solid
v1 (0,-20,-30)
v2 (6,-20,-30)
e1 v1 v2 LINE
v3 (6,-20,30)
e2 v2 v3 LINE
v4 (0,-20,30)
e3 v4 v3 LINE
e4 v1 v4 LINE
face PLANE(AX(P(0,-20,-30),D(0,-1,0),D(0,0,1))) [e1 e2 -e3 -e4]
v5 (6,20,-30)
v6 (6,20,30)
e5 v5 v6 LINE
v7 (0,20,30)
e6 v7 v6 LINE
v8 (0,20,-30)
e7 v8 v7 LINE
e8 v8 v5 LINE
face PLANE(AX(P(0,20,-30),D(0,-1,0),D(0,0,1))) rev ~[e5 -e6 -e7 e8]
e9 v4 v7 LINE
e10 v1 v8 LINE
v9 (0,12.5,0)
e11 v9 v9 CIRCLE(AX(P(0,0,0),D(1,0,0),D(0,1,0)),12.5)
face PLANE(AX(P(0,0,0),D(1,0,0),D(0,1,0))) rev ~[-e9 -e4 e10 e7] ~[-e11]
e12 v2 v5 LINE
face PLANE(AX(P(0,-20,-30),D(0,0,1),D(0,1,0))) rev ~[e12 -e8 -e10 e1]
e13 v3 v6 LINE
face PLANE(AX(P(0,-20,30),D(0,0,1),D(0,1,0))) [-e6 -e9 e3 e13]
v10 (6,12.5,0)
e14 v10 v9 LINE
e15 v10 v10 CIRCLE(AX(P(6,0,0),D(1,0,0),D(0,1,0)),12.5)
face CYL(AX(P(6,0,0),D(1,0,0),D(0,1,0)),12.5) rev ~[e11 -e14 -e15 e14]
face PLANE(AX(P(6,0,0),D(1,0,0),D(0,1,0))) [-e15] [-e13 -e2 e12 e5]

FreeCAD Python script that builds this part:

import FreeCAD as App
import Part
import Sketcher
from FreeCAD import Vector


def add_polygon(sketch, points):
    """Adds a closed chain of lines whose ends are joined by coincident constraints."""
    first, n = sketch.GeometryCount, len(points)
    for a, b in zip(points, points[1:] + points[:1]):
        sketch.addGeometry(Part.LineSegment(App.Vector(*a, 0), App.Vector(*b, 0)), False)
    for i in range(n):
        sketch.addConstraint(Sketcher.Constraint("Coincident", first + i, 2, first + (i + 1) % n, 1))

doc = App.newDocument("Part")
body = doc.addObject("PartDesign::Body", "Body")

# Sketch on YZ plane
sketch1 = body.newObject("Sketcher::SketchObject", "Sketch")
sketch1.AttachmentSupport = (doc.getObject("YZ_Plane"), [""])
sketch1.MapMode = "FlatFace"
add_polygon(sketch1, [(-20, 30), (-20, -30), (20, -30), (20, 30)])  # lines 0-3
sketch1.addConstraint([
    Sketcher.Constraint("Vertical", 0),
    Sketcher.Constraint("Horizontal", 1),
    Sketcher.Constraint("Vertical", 2),
    Sketcher.Constraint("Horizontal", 3),
    Sketcher.Constraint("Symmetric", 0, 2, 2, 2, -1, 1),
    Sketcher.Constraint("DistanceX", 1, 1, 1, 2, 40.0),
    Sketcher.Constraint("DistanceY", 0, 2, 0, 1, 60.0),
])
pad1 = body.newObject("PartDesign::Pad", "Pad")
pad1.Profile = sketch1
pad1.Length = 6

# Sketch on YZ plane
sketch2 = body.newObject("Sketcher::SketchObject", "Sketch001")
sketch2.AttachmentSupport = (doc.getObject("YZ_Plane"), [""])
sketch2.MapMode = "FlatFace"
sketch2.AttachmentOffset = App.Placement(Vector(0, 0, 6), App.Rotation())
sketch2.addGeometry(Part.Circle(Vector(0, 0, 0), Vector(0, 0, 1), 12.5), False)
sketch2.addConstraint([
    Sketcher.Constraint("Coincident", 0, 3, -1, 1),
    Sketcher.Constraint("Diameter", 0, 25.0),
])
pocket1 = body.newObject("PartDesign::Pocket", "Pocket")
pocket1.Profile = sketch2
pocket1.Length = 25

doc.recompute()
